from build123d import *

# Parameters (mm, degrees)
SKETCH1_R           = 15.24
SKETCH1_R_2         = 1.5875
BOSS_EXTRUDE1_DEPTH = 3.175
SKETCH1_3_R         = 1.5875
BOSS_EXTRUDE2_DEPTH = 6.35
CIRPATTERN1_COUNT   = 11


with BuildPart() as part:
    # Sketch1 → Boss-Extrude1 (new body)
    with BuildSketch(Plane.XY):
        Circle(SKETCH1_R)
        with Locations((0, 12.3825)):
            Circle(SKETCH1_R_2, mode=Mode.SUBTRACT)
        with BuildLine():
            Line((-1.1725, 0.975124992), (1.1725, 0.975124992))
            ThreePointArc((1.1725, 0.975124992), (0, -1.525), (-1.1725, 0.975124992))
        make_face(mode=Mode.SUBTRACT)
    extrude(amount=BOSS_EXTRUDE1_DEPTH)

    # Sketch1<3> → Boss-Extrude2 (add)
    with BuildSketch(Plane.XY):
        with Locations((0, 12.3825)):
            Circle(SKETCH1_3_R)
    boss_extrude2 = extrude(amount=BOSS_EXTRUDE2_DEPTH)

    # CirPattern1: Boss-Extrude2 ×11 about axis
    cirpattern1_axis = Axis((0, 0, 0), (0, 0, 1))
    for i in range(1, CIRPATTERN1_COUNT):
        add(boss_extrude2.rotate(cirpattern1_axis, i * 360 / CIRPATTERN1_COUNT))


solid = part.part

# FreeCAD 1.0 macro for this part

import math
import FreeCAD as App
import Part
import Sketcher

V = App.Vector
Q = App.Units.Quantity

doc = App.newDocument("Part")
body = doc.addObject("PartDesign::Body", "Body")

# Sketch on XY plane
sketch1 = body.newObject("Sketcher::SketchObject", "Sketch")
sketch1.AttachmentSupport = (doc.getObject("XY_Plane"), [""])
sketch1.MapMode = "FlatFace"
sketch1.addGeometry([
    Part.Circle(V(0, 0, 0), V(0, 0, 1), 15.24),
    Part.ArcOfCircle(Part.Circle(V(0, 0, 0), V(0, 0, 1), 1.525), math.radians(140.250952), math.radians(399.749048)),
    Part.LineSegment(V(-1.1725, 0.975125, 0), V(1.1725, 0.975125, 0)),
    Part.Circle(V(0, 12.3825, 0), V(0, 0, 1), 1.5875),
], False)
sketch1.addConstraint([
    Sketcher.Constraint("Coincident", 1, 1, 2, 1),
    Sketcher.Constraint("Coincident", 2, 2, 1, 2),
    Sketcher.Constraint("Horizontal", 2),
    Sketcher.Constraint("Coincident", 0, 3, -1, 1),
    Sketcher.Constraint("Coincident", 1, 3, -1, 1),
    Sketcher.Constraint("PointOnObject", 3, 3, -2),
    Sketcher.Constraint("Diameter", 0, Q("1.2 in")),
    Sketcher.Constraint("Diameter", 3, Q("0.125 in")),
    Sketcher.Constraint("Radius", 1, Q("1.525 mm")),
    Sketcher.Constraint("DistanceX", 2, 1, 2, 2, Q("2.345 mm")),
    Sketcher.Constraint("DistanceY", -1, 1, 3, 3, Q("0.4875 in")),
])
pad1 = body.newObject("PartDesign::Pad", "Pad")
pad1.Profile = sketch1
pad1.Length = Q("0.125 in")

# Sketch on XY plane
sketch2 = body.newObject("Sketcher::SketchObject", "Sketch001")
sketch2.AttachmentSupport = (doc.getObject("XY_Plane"), [""])
sketch2.MapMode = "FlatFace"
sketch2.addGeometry(Part.Circle(V(0, 12.3825, 0), V(0, 0, 1), 1.5875), False)
sketch2.addConstraint([
    Sketcher.Constraint("PointOnObject", 0, 3, -2),
    Sketcher.Constraint("Diameter", 0, Q("0.125 in")),
    Sketcher.Constraint("DistanceY", -1, 1, 0, 3, Q("0.4875 in")),
])
pad2 = body.newObject("PartDesign::Pad", "Pad001")
pad2.Profile = sketch2
pad2.Length = Q("0.25 in")
doc.recompute()

polarpattern = body.newObject("PartDesign::PolarPattern", "PolarPattern")
polarpattern.Originals = [pad2]
polarpattern.Axis = (doc.getObject("Z_Axis"), [""])
polarpattern.Angle = 360
polarpattern.Occurrences = 11
body.Tip = polarpattern

doc.recompute()
